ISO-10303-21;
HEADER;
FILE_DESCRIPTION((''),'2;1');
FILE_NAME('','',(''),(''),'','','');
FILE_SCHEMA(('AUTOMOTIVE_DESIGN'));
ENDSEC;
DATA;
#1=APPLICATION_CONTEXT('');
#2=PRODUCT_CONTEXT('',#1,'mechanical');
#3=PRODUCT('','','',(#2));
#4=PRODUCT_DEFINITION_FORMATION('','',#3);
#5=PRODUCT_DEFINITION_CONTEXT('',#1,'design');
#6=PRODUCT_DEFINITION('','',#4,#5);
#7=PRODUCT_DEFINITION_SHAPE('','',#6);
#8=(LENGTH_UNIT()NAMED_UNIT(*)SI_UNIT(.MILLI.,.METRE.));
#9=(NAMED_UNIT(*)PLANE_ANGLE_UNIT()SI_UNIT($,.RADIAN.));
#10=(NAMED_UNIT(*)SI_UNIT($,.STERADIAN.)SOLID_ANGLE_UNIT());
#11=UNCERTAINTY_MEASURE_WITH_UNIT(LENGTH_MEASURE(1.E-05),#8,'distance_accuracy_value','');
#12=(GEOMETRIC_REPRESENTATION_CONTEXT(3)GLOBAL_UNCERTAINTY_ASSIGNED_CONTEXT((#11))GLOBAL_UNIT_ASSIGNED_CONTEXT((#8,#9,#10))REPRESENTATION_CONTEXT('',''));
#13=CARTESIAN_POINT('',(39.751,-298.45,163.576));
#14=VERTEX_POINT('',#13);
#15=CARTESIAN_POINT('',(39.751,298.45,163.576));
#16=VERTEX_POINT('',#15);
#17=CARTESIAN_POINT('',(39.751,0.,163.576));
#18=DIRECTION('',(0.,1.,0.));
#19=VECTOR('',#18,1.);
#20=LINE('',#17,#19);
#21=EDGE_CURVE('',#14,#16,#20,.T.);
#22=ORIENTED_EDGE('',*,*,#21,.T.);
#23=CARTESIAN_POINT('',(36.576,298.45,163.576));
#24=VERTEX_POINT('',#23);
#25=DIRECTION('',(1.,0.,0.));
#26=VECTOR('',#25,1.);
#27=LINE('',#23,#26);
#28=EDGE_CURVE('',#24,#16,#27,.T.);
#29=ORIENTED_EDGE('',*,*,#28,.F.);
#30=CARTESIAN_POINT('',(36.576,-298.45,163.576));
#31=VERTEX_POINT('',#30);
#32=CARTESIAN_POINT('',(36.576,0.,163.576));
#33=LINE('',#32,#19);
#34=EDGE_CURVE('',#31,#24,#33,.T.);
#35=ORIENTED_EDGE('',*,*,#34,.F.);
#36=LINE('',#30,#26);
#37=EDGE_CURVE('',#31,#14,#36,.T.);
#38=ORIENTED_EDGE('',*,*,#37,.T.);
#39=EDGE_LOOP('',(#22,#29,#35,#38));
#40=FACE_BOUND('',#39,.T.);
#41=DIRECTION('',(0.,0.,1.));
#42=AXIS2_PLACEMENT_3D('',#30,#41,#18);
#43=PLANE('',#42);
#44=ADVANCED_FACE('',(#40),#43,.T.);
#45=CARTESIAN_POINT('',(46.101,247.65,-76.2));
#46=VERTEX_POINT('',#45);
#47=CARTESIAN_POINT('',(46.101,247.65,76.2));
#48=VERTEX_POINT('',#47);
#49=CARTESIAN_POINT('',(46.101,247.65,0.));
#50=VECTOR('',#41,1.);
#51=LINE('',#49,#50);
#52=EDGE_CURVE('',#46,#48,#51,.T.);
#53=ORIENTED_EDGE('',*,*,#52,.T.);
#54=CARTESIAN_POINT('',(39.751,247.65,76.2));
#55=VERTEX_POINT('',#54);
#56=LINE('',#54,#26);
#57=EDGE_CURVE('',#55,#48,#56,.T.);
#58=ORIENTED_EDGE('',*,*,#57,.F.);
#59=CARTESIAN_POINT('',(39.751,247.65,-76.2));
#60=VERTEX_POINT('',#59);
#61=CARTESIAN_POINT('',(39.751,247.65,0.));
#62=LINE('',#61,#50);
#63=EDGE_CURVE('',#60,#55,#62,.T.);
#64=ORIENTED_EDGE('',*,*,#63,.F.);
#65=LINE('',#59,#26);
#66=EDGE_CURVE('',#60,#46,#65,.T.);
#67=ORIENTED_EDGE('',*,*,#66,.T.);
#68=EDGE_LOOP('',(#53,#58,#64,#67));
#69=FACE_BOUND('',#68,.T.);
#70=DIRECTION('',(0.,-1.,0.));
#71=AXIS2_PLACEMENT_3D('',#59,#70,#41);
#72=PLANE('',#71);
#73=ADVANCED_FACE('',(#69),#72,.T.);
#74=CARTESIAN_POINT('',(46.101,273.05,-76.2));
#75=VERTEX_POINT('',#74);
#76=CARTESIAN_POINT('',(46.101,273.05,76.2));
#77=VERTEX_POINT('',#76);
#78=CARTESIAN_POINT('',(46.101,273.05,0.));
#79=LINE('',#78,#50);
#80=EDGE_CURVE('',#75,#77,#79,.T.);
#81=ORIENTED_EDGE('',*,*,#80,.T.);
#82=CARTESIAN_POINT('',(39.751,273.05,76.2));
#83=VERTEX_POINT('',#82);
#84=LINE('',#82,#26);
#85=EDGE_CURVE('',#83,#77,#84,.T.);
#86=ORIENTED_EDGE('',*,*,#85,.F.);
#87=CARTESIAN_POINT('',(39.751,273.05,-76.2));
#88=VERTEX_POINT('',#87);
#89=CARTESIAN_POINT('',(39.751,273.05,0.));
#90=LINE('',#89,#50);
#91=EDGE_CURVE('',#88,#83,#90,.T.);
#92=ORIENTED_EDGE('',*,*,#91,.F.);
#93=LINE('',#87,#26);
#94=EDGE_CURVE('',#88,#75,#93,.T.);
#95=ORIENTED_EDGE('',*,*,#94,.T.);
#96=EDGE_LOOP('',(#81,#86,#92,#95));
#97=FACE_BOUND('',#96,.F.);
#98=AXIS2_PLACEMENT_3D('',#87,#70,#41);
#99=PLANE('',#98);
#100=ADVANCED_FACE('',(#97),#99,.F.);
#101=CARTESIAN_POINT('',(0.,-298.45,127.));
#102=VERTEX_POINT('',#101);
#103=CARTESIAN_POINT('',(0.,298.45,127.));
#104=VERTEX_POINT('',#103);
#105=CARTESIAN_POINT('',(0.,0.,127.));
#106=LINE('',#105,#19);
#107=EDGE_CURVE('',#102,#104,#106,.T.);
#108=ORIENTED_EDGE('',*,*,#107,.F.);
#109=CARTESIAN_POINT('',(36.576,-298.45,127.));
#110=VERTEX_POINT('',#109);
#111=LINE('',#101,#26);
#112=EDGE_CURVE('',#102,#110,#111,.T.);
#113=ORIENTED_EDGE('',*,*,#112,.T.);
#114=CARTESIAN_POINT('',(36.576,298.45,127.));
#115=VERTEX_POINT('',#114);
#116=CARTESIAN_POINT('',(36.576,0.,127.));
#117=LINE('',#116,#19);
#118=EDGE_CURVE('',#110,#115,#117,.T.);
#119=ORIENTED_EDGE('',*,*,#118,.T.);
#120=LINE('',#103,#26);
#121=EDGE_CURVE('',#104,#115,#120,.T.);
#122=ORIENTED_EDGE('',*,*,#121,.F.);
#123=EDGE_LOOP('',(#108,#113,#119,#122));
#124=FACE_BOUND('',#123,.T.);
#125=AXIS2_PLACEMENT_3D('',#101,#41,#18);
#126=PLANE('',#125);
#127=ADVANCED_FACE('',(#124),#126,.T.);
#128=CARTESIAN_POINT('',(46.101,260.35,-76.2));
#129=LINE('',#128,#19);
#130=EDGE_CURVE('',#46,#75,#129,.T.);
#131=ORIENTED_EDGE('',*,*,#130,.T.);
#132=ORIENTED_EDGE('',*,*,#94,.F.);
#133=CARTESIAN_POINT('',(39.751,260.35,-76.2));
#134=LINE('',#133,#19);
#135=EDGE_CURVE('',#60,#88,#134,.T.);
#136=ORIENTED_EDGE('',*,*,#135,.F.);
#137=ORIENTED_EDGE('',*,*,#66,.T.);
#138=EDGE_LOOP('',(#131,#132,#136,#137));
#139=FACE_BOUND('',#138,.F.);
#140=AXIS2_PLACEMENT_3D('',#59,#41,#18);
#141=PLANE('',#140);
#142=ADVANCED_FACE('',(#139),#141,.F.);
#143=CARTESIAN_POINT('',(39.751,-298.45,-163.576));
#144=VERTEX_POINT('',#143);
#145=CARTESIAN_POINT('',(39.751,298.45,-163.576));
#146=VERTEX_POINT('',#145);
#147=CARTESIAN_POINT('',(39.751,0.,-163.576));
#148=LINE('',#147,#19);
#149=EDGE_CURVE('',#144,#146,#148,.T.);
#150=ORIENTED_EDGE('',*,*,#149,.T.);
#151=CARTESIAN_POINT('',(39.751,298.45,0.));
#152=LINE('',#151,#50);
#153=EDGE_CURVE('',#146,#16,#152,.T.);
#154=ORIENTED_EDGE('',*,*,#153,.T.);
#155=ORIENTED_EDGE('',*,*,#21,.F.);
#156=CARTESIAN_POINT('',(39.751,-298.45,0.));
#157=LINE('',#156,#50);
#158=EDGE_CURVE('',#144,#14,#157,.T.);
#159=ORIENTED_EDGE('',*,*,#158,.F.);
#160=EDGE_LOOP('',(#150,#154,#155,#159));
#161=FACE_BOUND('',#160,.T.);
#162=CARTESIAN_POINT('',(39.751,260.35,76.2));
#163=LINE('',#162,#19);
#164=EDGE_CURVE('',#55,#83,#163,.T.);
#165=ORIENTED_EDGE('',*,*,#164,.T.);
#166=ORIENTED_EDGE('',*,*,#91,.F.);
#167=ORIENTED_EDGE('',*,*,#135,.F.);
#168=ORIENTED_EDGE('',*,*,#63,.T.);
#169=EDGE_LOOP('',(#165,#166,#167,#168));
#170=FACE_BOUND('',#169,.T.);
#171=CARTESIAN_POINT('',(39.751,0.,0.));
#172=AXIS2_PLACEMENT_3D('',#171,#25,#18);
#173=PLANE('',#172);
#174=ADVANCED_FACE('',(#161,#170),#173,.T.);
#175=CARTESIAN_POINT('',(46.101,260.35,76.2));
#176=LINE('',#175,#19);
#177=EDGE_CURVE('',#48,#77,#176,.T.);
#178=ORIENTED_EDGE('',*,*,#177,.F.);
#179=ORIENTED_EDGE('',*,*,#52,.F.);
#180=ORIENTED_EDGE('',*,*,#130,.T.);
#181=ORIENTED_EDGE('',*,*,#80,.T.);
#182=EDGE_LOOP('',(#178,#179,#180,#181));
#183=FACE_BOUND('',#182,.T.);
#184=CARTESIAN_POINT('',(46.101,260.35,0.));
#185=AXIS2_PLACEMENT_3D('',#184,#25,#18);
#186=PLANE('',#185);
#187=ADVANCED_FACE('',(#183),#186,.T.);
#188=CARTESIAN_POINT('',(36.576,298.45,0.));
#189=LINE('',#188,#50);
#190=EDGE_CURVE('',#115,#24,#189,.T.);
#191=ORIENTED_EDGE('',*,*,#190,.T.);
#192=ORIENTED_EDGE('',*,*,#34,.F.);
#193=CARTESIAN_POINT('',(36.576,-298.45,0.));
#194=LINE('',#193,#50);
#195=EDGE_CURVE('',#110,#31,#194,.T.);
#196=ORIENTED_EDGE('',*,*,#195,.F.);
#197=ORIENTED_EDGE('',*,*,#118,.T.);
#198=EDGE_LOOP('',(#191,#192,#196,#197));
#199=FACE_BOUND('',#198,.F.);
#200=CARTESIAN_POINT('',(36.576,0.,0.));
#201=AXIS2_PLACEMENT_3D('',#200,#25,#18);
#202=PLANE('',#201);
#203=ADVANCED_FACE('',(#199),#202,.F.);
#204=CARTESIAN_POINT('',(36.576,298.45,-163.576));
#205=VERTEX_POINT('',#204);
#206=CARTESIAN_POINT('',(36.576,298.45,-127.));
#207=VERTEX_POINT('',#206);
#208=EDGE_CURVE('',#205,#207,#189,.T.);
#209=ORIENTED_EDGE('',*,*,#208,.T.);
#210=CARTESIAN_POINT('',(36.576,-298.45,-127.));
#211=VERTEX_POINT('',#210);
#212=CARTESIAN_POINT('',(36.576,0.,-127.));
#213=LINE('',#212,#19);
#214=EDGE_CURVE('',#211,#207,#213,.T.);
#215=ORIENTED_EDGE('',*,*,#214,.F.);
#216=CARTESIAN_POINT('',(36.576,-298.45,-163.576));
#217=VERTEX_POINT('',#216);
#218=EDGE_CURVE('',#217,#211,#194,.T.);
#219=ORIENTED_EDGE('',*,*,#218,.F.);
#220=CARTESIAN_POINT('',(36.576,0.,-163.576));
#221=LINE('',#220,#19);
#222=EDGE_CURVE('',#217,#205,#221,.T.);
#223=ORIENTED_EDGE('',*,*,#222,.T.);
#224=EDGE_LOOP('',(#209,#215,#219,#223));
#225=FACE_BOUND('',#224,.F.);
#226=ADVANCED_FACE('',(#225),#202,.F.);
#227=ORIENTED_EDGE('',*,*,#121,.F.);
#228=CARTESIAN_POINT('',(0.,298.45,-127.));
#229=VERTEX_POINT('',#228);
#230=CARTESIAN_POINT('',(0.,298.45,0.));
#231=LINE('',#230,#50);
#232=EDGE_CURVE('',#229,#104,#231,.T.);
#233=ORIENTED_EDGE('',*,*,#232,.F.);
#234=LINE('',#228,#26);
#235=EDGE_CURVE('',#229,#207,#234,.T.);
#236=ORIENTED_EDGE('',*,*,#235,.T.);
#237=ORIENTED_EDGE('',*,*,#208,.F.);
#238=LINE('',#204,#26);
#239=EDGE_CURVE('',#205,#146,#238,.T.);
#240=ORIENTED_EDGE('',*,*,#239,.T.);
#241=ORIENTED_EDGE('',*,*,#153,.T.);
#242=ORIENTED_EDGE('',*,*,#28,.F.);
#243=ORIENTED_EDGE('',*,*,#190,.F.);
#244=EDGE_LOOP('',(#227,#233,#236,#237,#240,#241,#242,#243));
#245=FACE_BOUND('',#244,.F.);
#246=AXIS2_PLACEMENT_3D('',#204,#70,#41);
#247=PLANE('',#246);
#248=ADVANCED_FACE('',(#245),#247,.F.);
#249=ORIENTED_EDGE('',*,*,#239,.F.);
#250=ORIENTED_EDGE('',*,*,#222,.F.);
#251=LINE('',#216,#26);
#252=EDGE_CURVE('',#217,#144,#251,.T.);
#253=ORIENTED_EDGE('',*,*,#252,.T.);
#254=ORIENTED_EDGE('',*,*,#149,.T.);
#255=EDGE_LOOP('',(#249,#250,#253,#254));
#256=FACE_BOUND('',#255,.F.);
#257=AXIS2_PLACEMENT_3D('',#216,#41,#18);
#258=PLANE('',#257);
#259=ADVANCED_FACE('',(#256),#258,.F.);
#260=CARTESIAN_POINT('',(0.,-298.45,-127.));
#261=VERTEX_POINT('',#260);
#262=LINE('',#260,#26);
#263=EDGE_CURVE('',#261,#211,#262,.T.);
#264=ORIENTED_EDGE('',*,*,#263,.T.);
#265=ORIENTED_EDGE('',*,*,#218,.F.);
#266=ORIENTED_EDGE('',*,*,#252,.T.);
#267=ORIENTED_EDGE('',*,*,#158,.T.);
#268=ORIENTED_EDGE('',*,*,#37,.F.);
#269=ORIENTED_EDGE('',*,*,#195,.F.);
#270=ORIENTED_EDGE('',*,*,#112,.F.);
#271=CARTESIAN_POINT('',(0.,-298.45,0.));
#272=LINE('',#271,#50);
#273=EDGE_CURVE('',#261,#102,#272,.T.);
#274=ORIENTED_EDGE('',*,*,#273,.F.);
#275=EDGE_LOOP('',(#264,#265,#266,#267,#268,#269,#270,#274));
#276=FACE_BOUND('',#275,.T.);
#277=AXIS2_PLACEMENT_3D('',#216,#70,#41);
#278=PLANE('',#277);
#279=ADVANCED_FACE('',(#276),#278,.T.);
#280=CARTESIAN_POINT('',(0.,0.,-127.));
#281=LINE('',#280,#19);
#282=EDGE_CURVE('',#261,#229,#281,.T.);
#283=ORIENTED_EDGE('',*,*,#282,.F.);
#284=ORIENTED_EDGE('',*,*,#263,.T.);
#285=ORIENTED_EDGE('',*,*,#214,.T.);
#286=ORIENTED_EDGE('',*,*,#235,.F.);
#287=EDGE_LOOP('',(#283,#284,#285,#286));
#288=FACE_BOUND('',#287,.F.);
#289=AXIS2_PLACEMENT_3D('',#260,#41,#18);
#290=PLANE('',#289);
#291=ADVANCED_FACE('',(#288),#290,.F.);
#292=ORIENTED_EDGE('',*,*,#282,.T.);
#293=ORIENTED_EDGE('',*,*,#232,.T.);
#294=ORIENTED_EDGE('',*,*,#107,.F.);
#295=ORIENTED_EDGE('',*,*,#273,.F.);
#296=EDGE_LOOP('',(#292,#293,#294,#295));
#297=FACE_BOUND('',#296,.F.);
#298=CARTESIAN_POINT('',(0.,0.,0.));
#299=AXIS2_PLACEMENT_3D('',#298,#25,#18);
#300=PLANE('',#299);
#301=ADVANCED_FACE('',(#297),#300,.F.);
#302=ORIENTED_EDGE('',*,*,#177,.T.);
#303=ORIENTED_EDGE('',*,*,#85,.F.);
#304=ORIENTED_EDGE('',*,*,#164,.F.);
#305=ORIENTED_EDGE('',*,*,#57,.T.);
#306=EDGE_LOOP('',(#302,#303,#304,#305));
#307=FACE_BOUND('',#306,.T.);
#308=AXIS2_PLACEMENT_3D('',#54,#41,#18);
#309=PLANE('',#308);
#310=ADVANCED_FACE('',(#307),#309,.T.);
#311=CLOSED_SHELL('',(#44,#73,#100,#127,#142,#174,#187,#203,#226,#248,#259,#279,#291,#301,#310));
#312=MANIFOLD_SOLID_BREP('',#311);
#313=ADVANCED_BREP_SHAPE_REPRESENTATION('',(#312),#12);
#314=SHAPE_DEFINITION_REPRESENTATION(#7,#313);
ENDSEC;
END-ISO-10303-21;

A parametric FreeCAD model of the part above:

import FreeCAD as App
import Part
import Sketcher
from FreeCAD import Vector
Q = App.Units.Quantity

doc = App.newDocument("Part")
body = doc.addObject("PartDesign::Body", "Body")

# Sketch on YZ plane
sketch1 = body.newObject("Sketcher::SketchObject", "Sketch")
sketch1.AttachmentSupport = (doc.getObject("YZ_Plane"), [""])
sketch1.MapMode = "FlatFace"
sketch1.addGeometry(Part.LineSegment(Vector(-298, 127, 0), Vector(-298, -127, 0)), False)
sketch1.addGeometry(Part.LineSegment(Vector(-298, -127, 0), Vector(298, -127, 0)), False)
sketch1.addGeometry(Part.LineSegment(Vector(298, -127, 0), Vector(298, 127, 0)), False)
sketch1.addGeometry(Part.LineSegment(Vector(298, 127, 0), Vector(-298, 127, 0)), False)
sketch1.addConstraint(Sketcher.Constraint("Coincident", 0, 2, 1, 1))
sketch1.addConstraint(Sketcher.Constraint("Coincident", 1, 2, 2, 1))
sketch1.addConstraint(Sketcher.Constraint("Coincident", 2, 2, 3, 1))
sketch1.addConstraint(Sketcher.Constraint("Coincident", 3, 2, 0, 1))
sketch1.addConstraint(Sketcher.Constraint("Vertical", 0))
sketch1.addConstraint(Sketcher.Constraint("Horizontal", 1))
sketch1.addConstraint(Sketcher.Constraint("Vertical", 2))
sketch1.addConstraint(Sketcher.Constraint("Horizontal", 3))
sketch1.addConstraint(Sketcher.Constraint("Symmetric", 0, 2, 2, 2, -1, 1))
sketch1.addConstraint(Sketcher.Constraint("DistanceY", 0, 2, 0, 1, Q("10 in")))
sketch1.addConstraint(Sketcher.Constraint("DistanceX", 1, 1, 1, 2, Q("23.5 in")))
pad1 = body.newObject("PartDesign::Pad", "Pad")
pad1.Profile = sketch1
pad1.Length = Q("1.44 in")

# Sketch on YZ plane
sketch2 = body.newObject("Sketcher::SketchObject", "Sketch001")
sketch2.AttachmentSupport = (doc.getObject("YZ_Plane"), [""])
sketch2.MapMode = "FlatFace"
sketch2.AttachmentOffset = App.Placement(Vector(0, 0, 1.44 * 25.4), App.Rotation())
sketch2.addGeometry(Part.LineSegment(Vector(-298, 164, 0), Vector(-298, -164, 0)), False)
sketch2.addGeometry(Part.LineSegment(Vector(-298, -164, 0), Vector(298, -164, 0)), False)
sketch2.addGeometry(Part.LineSegment(Vector(298, -164, 0), Vector(298, 164, 0)), False)
sketch2.addGeometry(Part.LineSegment(Vector(298, 164, 0), Vector(-298, 164, 0)), False)
sketch2.addConstraint(Sketcher.Constraint("Coincident", 0, 2, 1, 1))
sketch2.addConstraint(Sketcher.Constraint("Coincident", 1, 2, 2, 1))
sketch2.addConstraint(Sketcher.Constraint("Coincident", 2, 2, 3, 1))
sketch2.addConstraint(Sketcher.Constraint("Coincident", 3, 2, 0, 1))
sketch2.addConstraint(Sketcher.Constraint("Vertical", 0))
sketch2.addConstraint(Sketcher.Constraint("Horizontal", 1))
sketch2.addConstraint(Sketcher.Constraint("Vertical", 2))
sketch2.addConstraint(Sketcher.Constraint("Horizontal", 3))
sketch2.addConstraint(Sketcher.Constraint("Symmetric", 0, 2, 2, 2, -1, 1))
sketch2.addConstraint(Sketcher.Constraint("DistanceX", 1, 1, 1, 2, Q("23.5 in")))
sketch2.addConstraint(Sketcher.Constraint("DistanceY", 0, 2, 0, 1, Q("12.88 in")))
pad2 = body.newObject("PartDesign::Pad", "Pad001")
pad2.Profile = sketch2
pad2.Length = Q("0.125 in")

# Sketch on YZ plane
sketch3 = body.newObject("Sketcher::SketchObject", "Sketch002")
sketch3.AttachmentSupport = (doc.getObject("YZ_Plane"), [""])
sketch3.MapMode = "FlatFace"
sketch3.AttachmentOffset = App.Placement(Vector(0, 0, 1.565 * 25.4), App.Rotation())
sketch3.addGeometry(Part.LineSegment(Vector(248, 76, 0), Vector(248, -76, 0)), False)
sketch3.addGeometry(Part.LineSegment(Vector(248, -76, 0), Vector(273, -76, 0)), False)
sketch3.addGeometry(Part.LineSegment(Vector(273, -76, 0), Vector(273, 76, 0)), False)
sketch3.addGeometry(Part.LineSegment(Vector(273, 76, 0), Vector(248, 76, 0)), False)
sketch3.addConstraint(Sketcher.Constraint("Coincident", 0, 2, 1, 1))
sketch3.addConstraint(Sketcher.Constraint("Coincident", 1, 2, 2, 1))
sketch3.addConstraint(Sketcher.Constraint("Coincident", 2, 2, 3, 1))
sketch3.addConstraint(Sketcher.Constraint("Coincident", 3, 2, 0, 1))
sketch3.addConstraint(Sketcher.Constraint("Vertical", 0))
sketch3.addConstraint(Sketcher.Constraint("Horizontal", 1))
sketch3.addConstraint(Sketcher.Constraint("Vertical", 2))
sketch3.addConstraint(Sketcher.Constraint("Horizontal", 3))
sketch3.addConstraint(Sketcher.Constraint("DistanceX", 1, 1, 1, 2, Q("1 in")))
sketch3.addConstraint(Sketcher.Constraint("DistanceY", 0, 2, 0, 1, Q("6 in")))
sketch3.addConstraint(Sketcher.Constraint("DistanceY", 0, 2, -1, 1, Q("3 in")))
sketch3.addConstraint(Sketcher.Constraint("DistanceX", -1, 1, 0, 2, Q("9.75 in")))
pad3 = body.newObject("PartDesign::Pad", "Pad002")
pad3.Profile = sketch3
pad3.Length = Q("0.25 in")

doc.recompute()
